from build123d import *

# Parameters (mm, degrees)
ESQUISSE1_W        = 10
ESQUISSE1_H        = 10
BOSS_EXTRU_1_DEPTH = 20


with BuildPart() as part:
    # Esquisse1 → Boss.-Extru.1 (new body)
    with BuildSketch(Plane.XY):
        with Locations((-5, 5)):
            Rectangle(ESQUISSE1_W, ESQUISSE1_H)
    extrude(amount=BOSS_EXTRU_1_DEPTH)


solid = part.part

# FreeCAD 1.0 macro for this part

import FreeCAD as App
import Part
import Sketcher
from FreeCAD import Vector


def add_polygon(sketch, points):
    """Adds a closed chain of lines whose ends are joined by coincident constraints."""
    first, n = sketch.GeometryCount, len(points)
    for a, b in zip(points, points[1:] + points[:1]):
        sketch.addGeometry(Part.LineSegment(App.Vector(*a, 0), App.Vector(*b, 0)), False)
    for i in range(n):
        sketch.addConstraint(Sketcher.Constraint("Coincident", first + i, 2, first + (i + 1) % n, 1))

doc = App.newDocument("Part")
body = doc.addObject("PartDesign::Body", "Body")

# Sketch on XY plane
sketch1 = body.newObject("Sketcher::SketchObject", "Sketch")
sketch1.AttachmentSupport = (doc.getObject("XY_Plane"), [""])
sketch1.MapMode = "FlatFace"
add_polygon(sketch1, [(-10, 10), (-10, 0), (0, 0), (0, 10)])  # lines 0-3
sketch1.addConstraint([
    Sketcher.Constraint("Vertical", 0),
    Sketcher.Constraint("Horizontal", 1),
    Sketcher.Constraint("Vertical", 2),
    Sketcher.Constraint("Horizontal", 3),
    Sketcher.Constraint("Coincident", 1, 2, -1, 1),
    Sketcher.Constraint("Equal", 3, 0),
    Sketcher.Constraint("DistanceX", 1, 1, 1, 2, 10.0),
])
pad1 = body.newObject("PartDesign::Pad", "Pad")
pad1.Profile = sketch1
pad1.Length = 20

doc.recompute()
